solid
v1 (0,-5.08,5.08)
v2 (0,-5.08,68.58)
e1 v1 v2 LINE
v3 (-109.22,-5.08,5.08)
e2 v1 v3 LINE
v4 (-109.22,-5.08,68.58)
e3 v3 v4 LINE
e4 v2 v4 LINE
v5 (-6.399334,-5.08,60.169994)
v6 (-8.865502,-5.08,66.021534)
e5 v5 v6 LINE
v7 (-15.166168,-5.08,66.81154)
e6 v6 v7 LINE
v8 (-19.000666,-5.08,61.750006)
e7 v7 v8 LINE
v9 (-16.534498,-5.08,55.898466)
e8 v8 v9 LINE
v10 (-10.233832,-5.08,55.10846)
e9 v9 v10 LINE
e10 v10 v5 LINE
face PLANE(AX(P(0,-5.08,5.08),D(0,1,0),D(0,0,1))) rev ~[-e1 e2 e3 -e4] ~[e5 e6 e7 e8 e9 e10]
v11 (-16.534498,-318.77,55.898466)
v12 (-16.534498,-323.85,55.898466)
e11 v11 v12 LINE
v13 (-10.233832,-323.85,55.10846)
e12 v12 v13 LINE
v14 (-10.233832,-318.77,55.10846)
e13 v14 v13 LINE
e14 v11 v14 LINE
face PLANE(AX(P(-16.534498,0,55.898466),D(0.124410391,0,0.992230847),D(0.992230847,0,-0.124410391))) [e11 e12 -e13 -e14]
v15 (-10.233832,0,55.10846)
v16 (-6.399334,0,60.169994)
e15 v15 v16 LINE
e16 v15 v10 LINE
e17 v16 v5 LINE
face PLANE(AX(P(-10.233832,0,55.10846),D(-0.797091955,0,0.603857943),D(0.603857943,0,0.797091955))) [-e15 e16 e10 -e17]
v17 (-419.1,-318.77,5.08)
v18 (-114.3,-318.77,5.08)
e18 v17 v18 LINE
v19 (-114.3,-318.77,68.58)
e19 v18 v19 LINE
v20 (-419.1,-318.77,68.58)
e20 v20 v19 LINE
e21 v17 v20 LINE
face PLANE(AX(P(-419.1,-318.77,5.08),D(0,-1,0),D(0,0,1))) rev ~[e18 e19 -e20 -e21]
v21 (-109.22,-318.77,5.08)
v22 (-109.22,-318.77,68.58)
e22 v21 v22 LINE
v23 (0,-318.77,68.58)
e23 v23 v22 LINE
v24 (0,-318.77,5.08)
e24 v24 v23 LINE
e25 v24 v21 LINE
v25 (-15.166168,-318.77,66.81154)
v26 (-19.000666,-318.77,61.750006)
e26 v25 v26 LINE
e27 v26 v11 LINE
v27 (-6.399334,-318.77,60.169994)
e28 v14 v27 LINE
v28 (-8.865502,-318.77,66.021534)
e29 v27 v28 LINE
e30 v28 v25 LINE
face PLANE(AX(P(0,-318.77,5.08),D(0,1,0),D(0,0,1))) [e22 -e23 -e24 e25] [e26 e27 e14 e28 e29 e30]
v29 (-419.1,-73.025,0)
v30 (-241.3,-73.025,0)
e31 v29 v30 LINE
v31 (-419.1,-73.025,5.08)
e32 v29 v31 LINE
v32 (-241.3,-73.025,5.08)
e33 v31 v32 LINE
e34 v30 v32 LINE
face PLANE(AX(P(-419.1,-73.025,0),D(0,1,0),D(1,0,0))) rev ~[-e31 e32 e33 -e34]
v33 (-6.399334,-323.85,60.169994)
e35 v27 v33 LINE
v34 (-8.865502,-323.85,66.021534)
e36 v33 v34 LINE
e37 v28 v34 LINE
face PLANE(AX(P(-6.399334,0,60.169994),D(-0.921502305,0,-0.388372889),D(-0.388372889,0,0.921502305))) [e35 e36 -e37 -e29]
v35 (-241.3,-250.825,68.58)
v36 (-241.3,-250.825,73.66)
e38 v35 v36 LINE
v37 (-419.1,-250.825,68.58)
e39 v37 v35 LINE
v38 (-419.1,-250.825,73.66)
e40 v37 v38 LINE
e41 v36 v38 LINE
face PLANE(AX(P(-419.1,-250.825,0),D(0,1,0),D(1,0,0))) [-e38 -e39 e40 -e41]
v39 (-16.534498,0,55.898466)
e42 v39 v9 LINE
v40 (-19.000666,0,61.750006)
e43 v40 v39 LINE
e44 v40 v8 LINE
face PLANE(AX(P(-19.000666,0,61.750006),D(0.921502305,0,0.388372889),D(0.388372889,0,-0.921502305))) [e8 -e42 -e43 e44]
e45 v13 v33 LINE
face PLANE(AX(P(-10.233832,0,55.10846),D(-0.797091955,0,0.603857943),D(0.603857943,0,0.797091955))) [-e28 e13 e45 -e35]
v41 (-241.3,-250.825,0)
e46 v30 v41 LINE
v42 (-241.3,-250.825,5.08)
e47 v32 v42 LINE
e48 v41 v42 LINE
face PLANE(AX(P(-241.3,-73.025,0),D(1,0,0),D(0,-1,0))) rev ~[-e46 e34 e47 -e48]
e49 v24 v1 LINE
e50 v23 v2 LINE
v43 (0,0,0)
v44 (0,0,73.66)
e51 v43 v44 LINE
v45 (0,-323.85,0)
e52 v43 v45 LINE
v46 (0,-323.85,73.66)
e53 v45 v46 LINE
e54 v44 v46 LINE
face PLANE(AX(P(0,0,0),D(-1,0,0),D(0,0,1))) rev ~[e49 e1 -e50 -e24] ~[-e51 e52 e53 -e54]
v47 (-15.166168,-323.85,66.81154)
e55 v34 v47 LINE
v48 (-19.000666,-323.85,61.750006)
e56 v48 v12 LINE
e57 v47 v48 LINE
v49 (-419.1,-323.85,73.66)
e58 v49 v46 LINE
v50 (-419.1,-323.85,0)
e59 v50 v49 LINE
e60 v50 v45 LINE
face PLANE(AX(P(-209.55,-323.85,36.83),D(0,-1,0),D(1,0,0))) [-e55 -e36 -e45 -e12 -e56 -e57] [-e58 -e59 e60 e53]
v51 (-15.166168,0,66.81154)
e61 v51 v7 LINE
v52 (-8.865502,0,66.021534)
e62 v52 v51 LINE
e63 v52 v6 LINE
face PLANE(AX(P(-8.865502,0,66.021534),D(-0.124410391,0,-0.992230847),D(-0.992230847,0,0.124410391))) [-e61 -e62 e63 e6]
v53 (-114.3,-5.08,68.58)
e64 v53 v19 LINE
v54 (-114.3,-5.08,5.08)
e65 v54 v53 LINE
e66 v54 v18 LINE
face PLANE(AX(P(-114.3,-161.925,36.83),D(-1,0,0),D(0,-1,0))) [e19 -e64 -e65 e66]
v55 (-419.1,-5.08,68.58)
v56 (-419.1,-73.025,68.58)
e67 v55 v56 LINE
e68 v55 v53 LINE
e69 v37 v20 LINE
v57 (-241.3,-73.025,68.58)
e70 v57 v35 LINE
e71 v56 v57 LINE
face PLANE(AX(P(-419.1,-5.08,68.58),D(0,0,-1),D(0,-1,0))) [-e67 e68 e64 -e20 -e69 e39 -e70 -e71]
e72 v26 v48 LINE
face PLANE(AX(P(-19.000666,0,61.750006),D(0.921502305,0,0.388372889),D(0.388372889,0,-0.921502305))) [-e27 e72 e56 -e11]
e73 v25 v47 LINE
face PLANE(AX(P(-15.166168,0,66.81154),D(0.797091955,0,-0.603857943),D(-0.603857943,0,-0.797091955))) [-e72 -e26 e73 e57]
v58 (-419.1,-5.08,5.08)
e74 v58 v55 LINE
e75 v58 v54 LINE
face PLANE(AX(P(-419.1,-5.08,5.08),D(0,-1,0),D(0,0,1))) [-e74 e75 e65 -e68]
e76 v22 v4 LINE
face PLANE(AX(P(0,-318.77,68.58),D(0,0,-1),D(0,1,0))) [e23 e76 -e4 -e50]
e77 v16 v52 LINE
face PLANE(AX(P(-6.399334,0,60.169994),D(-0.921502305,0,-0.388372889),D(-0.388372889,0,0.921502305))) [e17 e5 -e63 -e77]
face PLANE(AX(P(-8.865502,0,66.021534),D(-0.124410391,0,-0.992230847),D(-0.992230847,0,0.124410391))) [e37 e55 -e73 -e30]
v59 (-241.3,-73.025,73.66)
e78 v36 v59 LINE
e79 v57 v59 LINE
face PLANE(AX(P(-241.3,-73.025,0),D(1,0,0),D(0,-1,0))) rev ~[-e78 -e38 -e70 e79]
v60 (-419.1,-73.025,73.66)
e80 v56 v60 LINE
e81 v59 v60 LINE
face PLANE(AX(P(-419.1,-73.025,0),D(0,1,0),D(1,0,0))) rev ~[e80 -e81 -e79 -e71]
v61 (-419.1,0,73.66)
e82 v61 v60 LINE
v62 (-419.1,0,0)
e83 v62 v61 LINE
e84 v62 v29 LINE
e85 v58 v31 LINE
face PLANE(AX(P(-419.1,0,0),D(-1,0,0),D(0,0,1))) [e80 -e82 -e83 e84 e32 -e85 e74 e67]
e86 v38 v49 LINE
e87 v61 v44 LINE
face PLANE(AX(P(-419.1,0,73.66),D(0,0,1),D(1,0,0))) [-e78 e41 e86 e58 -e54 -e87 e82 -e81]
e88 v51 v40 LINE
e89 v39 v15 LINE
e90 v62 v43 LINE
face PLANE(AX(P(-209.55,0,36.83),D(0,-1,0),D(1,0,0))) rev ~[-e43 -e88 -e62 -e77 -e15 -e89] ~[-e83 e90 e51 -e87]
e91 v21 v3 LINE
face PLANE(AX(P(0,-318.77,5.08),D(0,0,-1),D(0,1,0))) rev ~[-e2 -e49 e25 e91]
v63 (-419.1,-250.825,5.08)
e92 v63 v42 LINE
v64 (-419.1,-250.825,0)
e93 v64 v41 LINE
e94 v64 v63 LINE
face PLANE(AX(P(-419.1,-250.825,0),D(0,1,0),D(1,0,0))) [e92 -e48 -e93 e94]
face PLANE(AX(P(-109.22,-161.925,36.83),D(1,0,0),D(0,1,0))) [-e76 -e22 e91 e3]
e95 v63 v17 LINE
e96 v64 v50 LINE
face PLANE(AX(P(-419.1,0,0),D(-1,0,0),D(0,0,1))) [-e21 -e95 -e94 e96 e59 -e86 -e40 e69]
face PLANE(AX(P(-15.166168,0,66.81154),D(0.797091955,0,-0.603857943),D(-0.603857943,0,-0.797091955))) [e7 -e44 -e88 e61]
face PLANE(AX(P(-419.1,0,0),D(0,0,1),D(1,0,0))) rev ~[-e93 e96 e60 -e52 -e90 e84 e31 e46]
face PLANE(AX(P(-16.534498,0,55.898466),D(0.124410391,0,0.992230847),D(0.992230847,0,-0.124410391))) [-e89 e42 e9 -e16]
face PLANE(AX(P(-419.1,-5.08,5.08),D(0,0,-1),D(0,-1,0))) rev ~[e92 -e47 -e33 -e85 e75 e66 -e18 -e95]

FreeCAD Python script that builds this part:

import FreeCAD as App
import Part
import Sketcher

V = App.Vector
Q = App.Units.Quantity

doc = App.newDocument("Part")
body = doc.addObject("PartDesign::Body", "Body")

# Sketch on XZ plane
sketch1 = body.newObject("Sketcher::SketchObject", "Sketch")
sketch1.AttachmentSupport = (doc.getObject("XZ_Plane"), [""])
sketch1.MapMode = "FlatFace"
sketch1.addGeometry(Part.LineSegment(V(-419, 74, 0), V(-419, 0, 0)), False)
sketch1.addGeometry(Part.LineSegment(V(-419, 0, 0), V(0, 0, 0)), False)
sketch1.addGeometry(Part.LineSegment(V(0, 0, 0), V(0, 74, 0)), False)
sketch1.addGeometry(Part.LineSegment(V(0, 74, 0), V(-419, 74, 0)), False)
sketch1.addConstraint(Sketcher.Constraint("Coincident", 0, 2, 1, 1))
sketch1.addConstraint(Sketcher.Constraint("Coincident", 1, 2, 2, 1))
sketch1.addConstraint(Sketcher.Constraint("Coincident", 2, 2, 3, 1))
sketch1.addConstraint(Sketcher.Constraint("Coincident", 3, 2, 0, 1))
sketch1.addConstraint(Sketcher.Constraint("Vertical", 0))
sketch1.addConstraint(Sketcher.Constraint("Horizontal", 1))
sketch1.addConstraint(Sketcher.Constraint("Vertical", 2))
sketch1.addConstraint(Sketcher.Constraint("Horizontal", 3))
sketch1.addConstraint(Sketcher.Constraint("Coincident", 1, 2, -1, 1))
sketch1.addConstraint(Sketcher.Constraint("DistanceX", 1, 1, 1, 2, Q("16.5 in")))
sketch1.addConstraint(Sketcher.Constraint("DistanceY", 0, 2, 0, 1, Q("2.9 in")))
pad1 = body.newObject("PartDesign::Pad", "Pad")
pad1.Profile = sketch1
pad1.Length = Q("12.75 in")

# Sketch on YZ plane
sketch2 = body.newObject("Sketcher::SketchObject", "Sketch001")
sketch2.AttachmentSupport = (doc.getObject("YZ_Plane"), [""])
sketch2.MapMode = "FlatFace"
sketch2.AttachmentOffset = App.Placement(V(0, 0, -16.5 * 25.4), App.Rotation())
sketch2.addGeometry(Part.LineSegment(V(-5, 69, 0), V(-5, 5, 0)), False)
sketch2.addGeometry(Part.LineSegment(V(-5, 5, 0), V(-319, 5, 0)), False)
sketch2.addGeometry(Part.LineSegment(V(-319, 5, 0), V(-319, 69, 0)), False)
sketch2.addGeometry(Part.LineSegment(V(-319, 69, 0), V(-5, 69, 0)), False)
sketch2.addConstraint(Sketcher.Constraint("Coincident", 0, 2, 1, 1))
sketch2.addConstraint(Sketcher.Constraint("Coincident", 1, 2, 2, 1))
sketch2.addConstraint(Sketcher.Constraint("Coincident", 2, 2, 3, 1))
sketch2.addConstraint(Sketcher.Constraint("Coincident", 3, 2, 0, 1))
sketch2.addConstraint(Sketcher.Constraint("Vertical", 0))
sketch2.addConstraint(Sketcher.Constraint("Horizontal", 1))
sketch2.addConstraint(Sketcher.Constraint("Vertical", 2))
sketch2.addConstraint(Sketcher.Constraint("Horizontal", 3))
sketch2.addConstraint(Sketcher.Constraint("DistanceY", 0, 2, 0, 1, Q("2.5 in")))
sketch2.addConstraint(Sketcher.Constraint("DistanceX", 1, 2, 1, 1, Q("12.35 in")))
sketch2.addConstraint(Sketcher.Constraint("DistanceX", 0, 2, -1, 1, Q("0.2 in")))
sketch2.addConstraint(Sketcher.Constraint("DistanceY", -1, 1, 0, 2, Q("0.2 in")))
pocket1 = body.newObject("PartDesign::Pocket", "Pocket")
pocket1.Profile = sketch2
pocket1.Length = Q("12 in")
pocket1.Reversed = True

# Sketch on YZ plane
sketch3 = body.newObject("Sketcher::SketchObject", "Sketch002")
sketch3.AttachmentSupport = (doc.getObject("YZ_Plane"), [""])
sketch3.MapMode = "FlatFace"
sketch3.addGeometry(Part.LineSegment(V(-319, 69, 0), V(-319, 5, 0)), False)
sketch3.addGeometry(Part.LineSegment(V(-319, 5, 0), V(-5, 5, 0)), False)
sketch3.addGeometry(Part.LineSegment(V(-5, 5, 0), V(-5, 69, 0)), False)
sketch3.addGeometry(Part.LineSegment(V(-5, 69, 0), V(-319, 69, 0)), False)
sketch3.addConstraint(Sketcher.Constraint("Coincident", 0, 2, 1, 1))
sketch3.addConstraint(Sketcher.Constraint("Coincident", 1, 2, 2, 1))
sketch3.addConstraint(Sketcher.Constraint("Coincident", 2, 2, 3, 1))
sketch3.addConstraint(Sketcher.Constraint("Coincident", 3, 2, 0, 1))
sketch3.addConstraint(Sketcher.Constraint("Vertical", 0))
sketch3.addConstraint(Sketcher.Constraint("Horizontal", 1))
sketch3.addConstraint(Sketcher.Constraint("Vertical", 2))
sketch3.addConstraint(Sketcher.Constraint("Horizontal", 3))
sketch3.addConstraint(Sketcher.Constraint("DistanceY", 0, 2, 0, 1, Q("2.5 in")))
sketch3.addConstraint(Sketcher.Constraint("DistanceX", 1, 1, 1, 2, Q("12.35 in")))
sketch3.addConstraint(Sketcher.Constraint("DistanceY", -1, 1, 0, 2, Q("0.2 in")))
sketch3.addConstraint(Sketcher.Constraint("DistanceX", 1, 2, -1, 1, Q("0.2 in")))
pocket2 = body.newObject("PartDesign::Pocket", "Pocket001")
pocket2.Profile = sketch3
pocket2.Length = Q("4.3 in")

# Sketch on XZ plane
sketch4 = body.newObject("Sketcher::SketchObject", "Sketch003")
sketch4.AttachmentSupport = (doc.getObject("XZ_Plane"), [""])
sketch4.MapMode = "FlatFace"
sketch4.addGeometry(Part.LineSegment(V(-19, 62, 0), V(-17, 56, 0)), False)
sketch4.addGeometry(Part.LineSegment(V(-17, 56, 0), V(-10, 55, 0)), False)
sketch4.addGeometry(Part.LineSegment(V(-10, 55, 0), V(-6, 60, 0)), False)
sketch4.addGeometry(Part.LineSegment(V(-6, 60, 0), V(-9, 66, 0)), False)
sketch4.addGeometry(Part.LineSegment(V(-9, 66, 0), V(-15, 67, 0)), False)
sketch4.addGeometry(Part.LineSegment(V(-15, 67, 0), V(-19, 62, 0)), False)
sketch4.addConstraint(Sketcher.Constraint("Coincident", 0, 2, 1, 1))
sketch4.addConstraint(Sketcher.Constraint("Coincident", 1, 2, 2, 1))
sketch4.addConstraint(Sketcher.Constraint("Coincident", 2, 2, 3, 1))
sketch4.addConstraint(Sketcher.Constraint("Coincident", 3, 2, 4, 1))
sketch4.addConstraint(Sketcher.Constraint("Coincident", 4, 2, 5, 1))
sketch4.addConstraint(Sketcher.Constraint("Coincident", 5, 2, 0, 1))
sketch4.addConstraint(Sketcher.Constraint("Parallel", 0, 3))
sketch4.addConstraint(Sketcher.Constraint("Parallel", 1, 4))
sketch4.addConstraint(Sketcher.Constraint("Parallel", 2, 5))
sketch4.addConstraint(Sketcher.Constraint("Equal", 0, 1))
sketch4.addConstraint(Sketcher.Constraint("Equal", 1, 2))
sketch4.addConstraint(Sketcher.Constraint("Equal", 2, 3))
sketch4.addConstraint(Sketcher.Constraint("Distance", 0, Q("0.25 in")))
sketch4.addConstraint(Sketcher.Constraint("DistanceX", 3, 2, -1, 1, Q("8.865502 mm")))
sketch4.addConstraint(Sketcher.Constraint("DistanceX", 1, 2, 2, 2, Q("3.834498 mm")))
sketch4.addConstraint(Sketcher.Constraint("DistanceY", -1, 1, 1, 2, Q("55.10846 mm")))
sketch4.addConstraint(Sketcher.Constraint("DistanceX", 4, 2, -1, 1, Q("15.166168 mm")))
sketch4.addConstraint(Sketcher.Constraint("DistanceY", -1, 1, 4, 2, Q("66.81154 mm")))
pocket3 = body.newObject("PartDesign::Pocket", "Pocket002")
pocket3.Profile = sketch4
pocket3.Type = "ThroughAll"
pocket3.Reversed = True

# Sketch on XY plane
sketch5 = body.newObject("Sketcher::SketchObject", "Sketch004")
sketch5.AttachmentSupport = (doc.getObject("XY_Plane"), [""])
sketch5.MapMode = "FlatFace"
sketch5.addGeometry(Part.LineSegment(V(-419, -251, 0), V(-419, -73, 0)), False)
sketch5.addGeometry(Part.LineSegment(V(-419, -73, 0), V(-241, -73, 0)), False)
sketch5.addGeometry(Part.LineSegment(V(-241, -73, 0), V(-241, -251, 0)), False)
sketch5.addGeometry(Part.LineSegment(V(-241, -251, 0), V(-419, -251, 0)), False)
sketch5.addConstraint(Sketcher.Constraint("Coincident", 0, 2, 1, 1))
sketch5.addConstraint(Sketcher.Constraint("Coincident", 1, 2, 2, 1))
sketch5.addConstraint(Sketcher.Constraint("Coincident", 2, 2, 3, 1))
sketch5.addConstraint(Sketcher.Constraint("Coincident", 3, 2, 0, 1))
sketch5.addConstraint(Sketcher.Constraint("Vertical", 0))
sketch5.addConstraint(Sketcher.Constraint("Horizontal", 1))
sketch5.addConstraint(Sketcher.Constraint("Vertical", 2))
sketch5.addConstraint(Sketcher.Constraint("Horizontal", 3))
sketch5.addConstraint(Sketcher.Constraint("Equal", 3, 0))
sketch5.addConstraint(Sketcher.Constraint("DistanceX", 1, 1, 1, 2, Q("7 in")))
sketch5.addConstraint(Sketcher.Constraint("DistanceX", 0, 2, -1, 1, Q("16.5 in")))
sketch5.addConstraint(Sketcher.Constraint("DistanceY", 0, 2, -1, 1, Q("2.875 in")))
pocket4 = body.newObject("PartDesign::Pocket", "Pocket003")
pocket4.Profile = sketch5
pocket4.Type = "ThroughAll"
pocket4.Reversed = True

doc.recompute()
